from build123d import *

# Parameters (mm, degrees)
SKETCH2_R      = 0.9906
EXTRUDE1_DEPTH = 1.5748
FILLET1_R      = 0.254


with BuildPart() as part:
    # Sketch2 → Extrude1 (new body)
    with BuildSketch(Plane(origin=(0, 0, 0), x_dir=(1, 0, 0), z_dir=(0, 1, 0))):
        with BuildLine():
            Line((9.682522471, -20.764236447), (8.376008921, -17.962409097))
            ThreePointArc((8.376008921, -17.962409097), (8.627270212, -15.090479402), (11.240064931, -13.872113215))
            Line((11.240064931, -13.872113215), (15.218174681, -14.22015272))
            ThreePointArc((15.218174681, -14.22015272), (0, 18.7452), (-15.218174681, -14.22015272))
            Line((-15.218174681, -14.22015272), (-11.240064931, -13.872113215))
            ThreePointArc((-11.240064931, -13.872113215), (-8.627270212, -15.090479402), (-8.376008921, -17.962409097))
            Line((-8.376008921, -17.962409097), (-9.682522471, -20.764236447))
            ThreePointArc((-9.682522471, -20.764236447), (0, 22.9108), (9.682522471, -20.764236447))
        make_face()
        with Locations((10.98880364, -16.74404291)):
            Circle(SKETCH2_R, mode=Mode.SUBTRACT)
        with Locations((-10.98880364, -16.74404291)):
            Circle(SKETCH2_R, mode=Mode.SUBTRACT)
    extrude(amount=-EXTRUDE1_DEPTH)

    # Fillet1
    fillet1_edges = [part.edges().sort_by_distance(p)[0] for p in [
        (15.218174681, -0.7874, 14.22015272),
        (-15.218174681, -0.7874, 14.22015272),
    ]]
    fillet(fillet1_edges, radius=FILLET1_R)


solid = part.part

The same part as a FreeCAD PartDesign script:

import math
import FreeCAD as App
import Part
import Sketcher
from FreeCAD import Vector
Q = App.Units.Quantity


def edges_at(feature, points):
    """Names of the edges that pass closest to the given points."""
    edges = feature.Shape.Edges
    near = lambda p: min(range(len(edges)), key=lambda i: edges[i].distToShape(Part.Vertex(*p))[0])
    return sorted({f"Edge{near(p) + 1}" for p in points})

doc = App.newDocument("Part")
body = doc.addObject("PartDesign::Body", "Body")

# Sketch on XZ plane
sketch1 = body.newObject("Sketcher::SketchObject", "Sketch")
sketch1.AttachmentSupport = (doc.getObject("XZ_Plane"), [""])
sketch1.MapMode = "FlatFace"
sketch1.addGeometry(Part.LineSegment(Vector(8.376009, 17.962409, 0), Vector(9.682522, 20.764236, 0)), False)
sketch1.addGeometry(Part.ArcOfCircle(Part.Circle(Vector(0, 0, 0), Vector(0, 0, 1), 22.9108), math.radians(115), math.radians(425)), False)
sketch1.addGeometry(Part.LineSegment(Vector(-9.682522, 20.764236, 0), Vector(-8.376009, 17.962409, 0)), False)
sketch1.addGeometry(Part.ArcOfCircle(Part.Circle(Vector(-10.988804, 16.744043, 0), Vector(0, 0, 1), 2.8829), math.radians(-95), math.radians(25)), False)
sketch1.addGeometry(Part.LineSegment(Vector(-11.240065, 13.872113, 0), Vector(-15.218175, 14.220153, 0)), False)
sketch1.addGeometry(Part.ArcOfCircle(Part.Circle(Vector(0, 1.250147, 0), Vector(0, 0, 1), 19.995347), math.radians(139.560014), math.radians(400.439986)), False)
sketch1.addGeometry(Part.LineSegment(Vector(15.218175, 14.220153, 0), Vector(11.240065, 13.872113, 0)), False)
sketch1.addGeometry(Part.ArcOfCircle(Part.Circle(Vector(10.988804, 16.744043, 0), Vector(0, 0, 1), 2.8829), math.radians(155), math.radians(275)), False)
sketch1.addGeometry(Part.Circle(Vector(10.988804, 16.744043, 0), Vector(0, 0, 1), 0.9906), False)
sketch1.addGeometry(Part.Circle(Vector(-10.988804, 16.744043, 0), Vector(0, 0, 1), 0.9906), False)
sketch1.addConstraint(Sketcher.Constraint("Coincident", 0, 2, 1, 2))
sketch1.addConstraint(Sketcher.Constraint("Coincident", 1, 1, 2, 1))
sketch1.addConstraint(Sketcher.Constraint("Tangent", 2, 2, 3, 2))
sketch1.addConstraint(Sketcher.Constraint("Tangent", 3, 1, 4, 1))
sketch1.addConstraint(Sketcher.Constraint("Coincident", 4, 2, 5, 1))
sketch1.addConstraint(Sketcher.Constraint("Coincident", 5, 2, 6, 1))
sketch1.addConstraint(Sketcher.Constraint("Tangent", 6, 2, 7, 2))
sketch1.addConstraint(Sketcher.Constraint("Tangent", 7, 1, 0, 1))
sketch1.addConstraint(Sketcher.Constraint("Coincident", 1, 3, -1, 1))
sketch1.addConstraint(Sketcher.Constraint("Coincident", 8, 3, 7, 3))
sketch1.addConstraint(Sketcher.Constraint("Coincident", 9, 3, 3, 3))
sketch1.addConstraint(Sketcher.Constraint("Equal", 3, 7))
sketch1.addConstraint(Sketcher.Constraint("Equal", 8, 9))
sketch1.addConstraint(Sketcher.Constraint("Symmetric", 3, 3, 7, 3, -2))
sketch1.addConstraint(Sketcher.Constraint("Symmetric", 4, 2, 5, 2, -2))
sketch1.addConstraint(Sketcher.Constraint("Horizontal", 0, 2, 1, 1))
sketch1.addConstraint(Sketcher.Constraint("Diameter", 8, Q("0.078 in")))
sketch1.addConstraint(Sketcher.Constraint("Angle", 0, Q("65 deg")))
sketch1.addConstraint(Sketcher.Constraint("Angle", 4, Q("175 deg")))
sketch1.addConstraint(Sketcher.Constraint("Radius", 1, Q("0.902 in")))
sketch1.addConstraint(Sketcher.Constraint("Radius", 3, Q("0.1135 in")))
sketch1.addConstraint(Sketcher.Constraint("Radius", 5, 19.995347))
sketch1.addConstraint(Sketcher.Constraint("DistanceX", 2, 2, -1, 1, 8.376009))
sketch1.addConstraint(Sketcher.Constraint("DistanceY", -1, 1, 2, 2, 17.962409))
sketch1.addConstraint(Sketcher.Constraint("DistanceY", 5, 3, 0, 2, 19.51409))
pad1 = body.newObject("PartDesign::Pad", "Pad")
pad1.Profile = sketch1
pad1.Length = Q("0.062 in")
doc.recompute()

fillet = body.newObject("PartDesign::Fillet", "Fillet")
fillet.Base = (pad1, edges_at(pad1, [(15.218, -0.787, 14.22), (-15.218, -0.787, 14.22)]))
fillet.Radius = Q("0.01 in")

doc.recompute()
